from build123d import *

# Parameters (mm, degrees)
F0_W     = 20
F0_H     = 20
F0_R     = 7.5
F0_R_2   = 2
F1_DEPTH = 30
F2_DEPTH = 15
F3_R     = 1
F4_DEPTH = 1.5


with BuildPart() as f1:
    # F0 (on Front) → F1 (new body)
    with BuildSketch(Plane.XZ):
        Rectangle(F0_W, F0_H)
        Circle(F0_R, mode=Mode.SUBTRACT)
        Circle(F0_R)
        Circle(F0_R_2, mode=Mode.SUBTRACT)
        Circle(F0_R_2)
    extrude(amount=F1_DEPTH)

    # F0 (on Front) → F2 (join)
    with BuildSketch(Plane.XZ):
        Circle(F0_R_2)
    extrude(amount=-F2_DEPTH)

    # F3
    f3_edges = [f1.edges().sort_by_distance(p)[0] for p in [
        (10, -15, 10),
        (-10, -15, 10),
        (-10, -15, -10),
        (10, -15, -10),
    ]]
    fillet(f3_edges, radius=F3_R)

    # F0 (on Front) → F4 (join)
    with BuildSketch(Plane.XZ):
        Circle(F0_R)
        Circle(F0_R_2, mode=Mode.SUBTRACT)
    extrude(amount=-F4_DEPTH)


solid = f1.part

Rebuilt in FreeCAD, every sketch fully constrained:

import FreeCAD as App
import Part
import Sketcher

V = App.Vector
Q = App.Units.Quantity


def edges_at(feature, points):
    """Names of the edges that pass closest to the given points."""
    edges = feature.Shape.Edges
    near = lambda p: min(range(len(edges)), key=lambda i: edges[i].distToShape(Part.Vertex(*p))[0])
    return sorted({f"Edge{near(p) + 1}" for p in points})

doc = App.newDocument("Part")
params = doc.addObject("Spreadsheet::Sheet", "Params")
for row, (alias, value) in enumerate([
    ("sketch1_width", "20 mm"),
    ("pad1_length", "30 mm"),
    ("sketch2_diameter", "4 mm"),
    ("pad2_length", "15 mm"),
    ("fillet_radius", "1 mm"),
    ("sketch3_diameter", "15 mm"),
    ("sketch3_diameter2", "4 mm"),
    ("pad3_length", "1.5 mm"),
], start=1):
    params.set(f"A{row}", alias)
    params.set(f"B{row}", "=" + value)
    params.setAlias(f"B{row}", alias)

body = doc.addObject("PartDesign::Body", "Body")

sketch1 = body.newObject("Sketcher::SketchObject", "Sketch")
sketch1.AttachmentSupport = (doc.getObject("XZ_Plane"), [""])
sketch1.MapMode = "FlatFace"
sketch1.addGeometry([
    Part.LineSegment(V(-10, 10, 0), V(-10, -10, 0)),
    Part.LineSegment(V(-10, -10, 0), V(10, -10, 0)),
    Part.LineSegment(V(10, -10, 0), V(10, 10, 0)),
    Part.LineSegment(V(10, 10, 0), V(-10, 10, 0)),
], False)
sketch1.addConstraint([
    Sketcher.Constraint("Coincident", 0, 2, 1, 1),
    Sketcher.Constraint("Coincident", 1, 2, 2, 1),
    Sketcher.Constraint("Coincident", 2, 2, 3, 1),
    Sketcher.Constraint("Coincident", 3, 2, 0, 1),
    Sketcher.Constraint("Vertical", 0),
    Sketcher.Constraint("Horizontal", 1),
    Sketcher.Constraint("Vertical", 2),
    Sketcher.Constraint("Horizontal", 3),
    Sketcher.Constraint("Symmetric", 0, 2, 2, 2, -1, 1),
    Sketcher.Constraint("Equal", 3, 0),
    Sketcher.Constraint("DistanceX", 1, 1, 1, 2, Q("20 mm")),
])
sketch1.setExpression("Constraints[10]", "Params.sketch1_width")
pad1 = body.newObject("PartDesign::Pad", "Pad")
pad1.Profile = sketch1
pad1.setExpression("Length", "Params.pad1_length")

sketch2 = body.newObject("Sketcher::SketchObject", "Sketch001")
sketch2.AttachmentSupport = (doc.getObject("XZ_Plane"), [""])
sketch2.MapMode = "FlatFace"
sketch2.addGeometry(Part.Circle(V(0, 0, 0), V(0, 0, 1), 2), False)
sketch2.addConstraint([
    Sketcher.Constraint("Coincident", 0, 3, -1, 1),
    Sketcher.Constraint("Diameter", 0, Q("4 mm")),
])
sketch2.setExpression("Constraints[1]", "Params.sketch2_diameter")
pad2 = body.newObject("PartDesign::Pad", "Pad001")
pad2.Profile = sketch2
pad2.setExpression("Length", "Params.pad2_length")
pad2.Reversed = True
doc.recompute()

fillet = body.newObject("PartDesign::Fillet", "Fillet")
fillet.Base = (pad2, edges_at(pad2, [
    (10, -15, 10),
    (-10, -15, 10),
    (-10, -15, -10),
    (10, -15, -10),
]))
fillet.setExpression("Radius", "Params.fillet_radius")

sketch3 = body.newObject("Sketcher::SketchObject", "Sketch002")
sketch3.AttachmentSupport = (doc.getObject("XZ_Plane"), [""])
sketch3.MapMode = "FlatFace"
sketch3.addGeometry([
    Part.Circle(V(0, 0, 0), V(0, 0, 1), 7.5),
    Part.Circle(V(0, 0, 0), V(0, 0, 1), 2),
], False)
sketch3.addConstraint([
    Sketcher.Constraint("Coincident", 0, 3, -1, 1),
    Sketcher.Constraint("Coincident", 1, 3, -1, 1),
    Sketcher.Constraint("Diameter", 0, Q("15 mm")),
    Sketcher.Constraint("Diameter", 1, Q("4 mm")),
])
sketch3.setExpression("Constraints[2]", "Params.sketch3_diameter")
sketch3.setExpression("Constraints[3]", "Params.sketch3_diameter2")
pad3 = body.newObject("PartDesign::Pad", "Pad002")
pad3.Profile = sketch3
pad3.setExpression("Length", "Params.pad3_length")
pad3.Reversed = True

doc.recompute()
